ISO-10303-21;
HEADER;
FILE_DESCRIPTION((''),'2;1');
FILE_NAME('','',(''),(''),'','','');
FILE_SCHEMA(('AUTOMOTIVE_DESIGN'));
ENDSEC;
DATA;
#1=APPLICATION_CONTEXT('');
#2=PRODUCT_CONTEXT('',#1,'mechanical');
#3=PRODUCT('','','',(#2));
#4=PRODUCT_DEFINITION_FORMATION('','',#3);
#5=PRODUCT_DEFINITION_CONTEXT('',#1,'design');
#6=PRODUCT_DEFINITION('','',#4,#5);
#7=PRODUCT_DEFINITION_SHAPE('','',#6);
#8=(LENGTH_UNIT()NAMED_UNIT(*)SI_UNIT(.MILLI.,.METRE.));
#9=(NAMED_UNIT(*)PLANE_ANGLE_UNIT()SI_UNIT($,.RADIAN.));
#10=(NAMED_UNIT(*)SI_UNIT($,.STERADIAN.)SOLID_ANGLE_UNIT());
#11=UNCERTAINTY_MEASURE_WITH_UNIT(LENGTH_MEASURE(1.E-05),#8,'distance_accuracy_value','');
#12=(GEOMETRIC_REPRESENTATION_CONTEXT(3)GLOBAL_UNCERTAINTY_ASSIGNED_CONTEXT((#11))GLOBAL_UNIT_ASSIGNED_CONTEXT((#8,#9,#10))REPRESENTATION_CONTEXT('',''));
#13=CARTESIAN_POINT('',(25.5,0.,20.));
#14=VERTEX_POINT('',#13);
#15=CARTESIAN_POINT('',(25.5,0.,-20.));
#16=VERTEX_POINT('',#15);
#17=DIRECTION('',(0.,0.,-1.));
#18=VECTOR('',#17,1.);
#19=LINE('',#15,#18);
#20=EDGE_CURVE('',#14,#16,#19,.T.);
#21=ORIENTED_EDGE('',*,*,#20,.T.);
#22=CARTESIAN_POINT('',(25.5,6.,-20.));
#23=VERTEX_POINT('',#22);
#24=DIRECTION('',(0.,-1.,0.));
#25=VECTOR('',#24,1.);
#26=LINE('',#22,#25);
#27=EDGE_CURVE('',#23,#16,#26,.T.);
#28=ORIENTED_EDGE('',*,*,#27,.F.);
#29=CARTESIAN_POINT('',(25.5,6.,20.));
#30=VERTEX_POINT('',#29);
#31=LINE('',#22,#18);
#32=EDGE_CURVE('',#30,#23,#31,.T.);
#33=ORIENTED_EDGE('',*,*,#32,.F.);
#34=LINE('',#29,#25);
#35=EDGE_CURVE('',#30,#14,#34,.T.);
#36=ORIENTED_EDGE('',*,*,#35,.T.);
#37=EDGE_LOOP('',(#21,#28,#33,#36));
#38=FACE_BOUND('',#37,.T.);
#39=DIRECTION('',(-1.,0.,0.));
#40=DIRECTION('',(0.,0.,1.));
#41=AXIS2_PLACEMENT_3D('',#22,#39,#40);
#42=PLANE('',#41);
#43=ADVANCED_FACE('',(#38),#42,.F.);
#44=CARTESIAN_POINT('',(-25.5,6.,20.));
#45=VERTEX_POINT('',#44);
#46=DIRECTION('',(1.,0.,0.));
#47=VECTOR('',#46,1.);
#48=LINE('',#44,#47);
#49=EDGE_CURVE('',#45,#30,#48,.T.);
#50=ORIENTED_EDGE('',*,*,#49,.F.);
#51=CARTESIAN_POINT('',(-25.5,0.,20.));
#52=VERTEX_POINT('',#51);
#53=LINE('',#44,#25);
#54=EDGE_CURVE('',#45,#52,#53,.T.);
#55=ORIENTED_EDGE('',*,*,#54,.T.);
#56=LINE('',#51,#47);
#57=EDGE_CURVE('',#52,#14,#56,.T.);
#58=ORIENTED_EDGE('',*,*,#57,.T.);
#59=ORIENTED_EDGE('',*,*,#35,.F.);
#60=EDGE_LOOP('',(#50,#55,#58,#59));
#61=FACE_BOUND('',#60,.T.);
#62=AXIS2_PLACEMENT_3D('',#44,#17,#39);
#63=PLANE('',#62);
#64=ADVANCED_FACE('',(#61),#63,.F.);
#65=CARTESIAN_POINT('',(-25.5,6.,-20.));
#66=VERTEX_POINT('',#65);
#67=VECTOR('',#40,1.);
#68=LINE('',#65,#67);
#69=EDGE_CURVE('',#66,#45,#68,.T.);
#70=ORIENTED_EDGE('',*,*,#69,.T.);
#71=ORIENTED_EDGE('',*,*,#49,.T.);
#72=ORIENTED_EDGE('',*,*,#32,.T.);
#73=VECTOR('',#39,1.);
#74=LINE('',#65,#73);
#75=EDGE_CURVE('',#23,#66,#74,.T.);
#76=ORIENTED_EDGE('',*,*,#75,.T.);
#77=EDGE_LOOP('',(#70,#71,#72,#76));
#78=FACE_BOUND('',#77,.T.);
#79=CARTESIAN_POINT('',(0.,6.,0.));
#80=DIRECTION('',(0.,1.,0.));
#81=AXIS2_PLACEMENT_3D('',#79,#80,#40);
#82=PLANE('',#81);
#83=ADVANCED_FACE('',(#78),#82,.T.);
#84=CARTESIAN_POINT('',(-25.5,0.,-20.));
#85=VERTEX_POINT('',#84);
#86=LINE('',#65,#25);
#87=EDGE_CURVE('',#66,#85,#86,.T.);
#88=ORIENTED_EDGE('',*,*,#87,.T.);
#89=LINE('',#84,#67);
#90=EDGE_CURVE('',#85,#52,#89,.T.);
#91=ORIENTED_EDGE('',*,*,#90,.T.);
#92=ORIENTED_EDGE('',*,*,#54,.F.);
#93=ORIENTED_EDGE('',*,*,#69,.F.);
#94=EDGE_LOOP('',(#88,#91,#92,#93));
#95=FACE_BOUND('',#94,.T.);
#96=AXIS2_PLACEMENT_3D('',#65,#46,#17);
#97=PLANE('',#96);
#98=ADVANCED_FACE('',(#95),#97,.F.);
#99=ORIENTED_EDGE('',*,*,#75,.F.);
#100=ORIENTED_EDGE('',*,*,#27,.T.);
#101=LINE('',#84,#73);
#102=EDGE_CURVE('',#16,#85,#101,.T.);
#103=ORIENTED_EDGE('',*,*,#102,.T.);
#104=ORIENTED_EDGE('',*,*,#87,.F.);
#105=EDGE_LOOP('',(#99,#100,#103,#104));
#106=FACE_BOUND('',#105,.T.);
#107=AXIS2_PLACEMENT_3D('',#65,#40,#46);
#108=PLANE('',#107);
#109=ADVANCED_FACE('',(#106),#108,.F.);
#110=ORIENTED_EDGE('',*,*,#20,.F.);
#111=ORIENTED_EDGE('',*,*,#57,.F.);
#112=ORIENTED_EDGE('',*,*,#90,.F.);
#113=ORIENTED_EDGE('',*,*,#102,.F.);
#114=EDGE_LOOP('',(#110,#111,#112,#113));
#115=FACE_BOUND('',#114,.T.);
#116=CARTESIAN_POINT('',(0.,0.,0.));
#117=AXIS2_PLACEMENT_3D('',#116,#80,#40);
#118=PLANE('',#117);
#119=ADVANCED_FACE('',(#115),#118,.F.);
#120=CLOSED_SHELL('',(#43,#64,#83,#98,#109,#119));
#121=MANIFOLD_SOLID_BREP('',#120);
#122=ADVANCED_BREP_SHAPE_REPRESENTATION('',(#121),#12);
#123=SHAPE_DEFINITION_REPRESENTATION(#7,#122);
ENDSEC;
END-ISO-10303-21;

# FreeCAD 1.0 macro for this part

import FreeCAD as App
import Part
import Sketcher

V = App.Vector


def add_polygon(sketch, points):
    """Adds a closed chain of lines whose ends are joined by coincident constraints."""
    first, n = sketch.GeometryCount, len(points)
    for a, b in zip(points, points[1:] + points[:1]):
        sketch.addGeometry(Part.LineSegment(App.Vector(*a, 0), App.Vector(*b, 0)), False)
    for i in range(n):
        sketch.addConstraint(Sketcher.Constraint("Coincident", first + i, 2, first + (i + 1) % n, 1))

doc = App.newDocument("Part")
body = doc.addObject("PartDesign::Body", "Body")

# Sketch on XZ plane
sketch1 = doc.addObject("Sketcher::SketchObject", "Sketch")
body.addObject(sketch1)
sketch1.AttachmentSupport = (doc.XZ_Plane, [""])
sketch1.MapMode = "FlatFace"
add_polygon(sketch1, [(-26, -20), (-26, 20), (26, 20), (26, -20)])  # lines 0-3
sketch1.addConstraint([
    Sketcher.Constraint("Vertical", 0),
    Sketcher.Constraint("Horizontal", 1),
    Sketcher.Constraint("Vertical", 2),
    Sketcher.Constraint("Horizontal", 3),
    Sketcher.Constraint("Symmetric", 0, 2, 2, 2, -1, 1),
    Sketcher.Constraint("DistanceX", 1, 1, 1, 2, 51.0),
    Sketcher.Constraint("DistanceY", 0, 1, 0, 2, 40.0),
])
pad1 = doc.addObject("PartDesign::Pad", "Pad")
body.addObject(pad1)
pad1.Profile = sketch1
pad1.Length = 6
pad1.Reversed = True

doc.recompute()
